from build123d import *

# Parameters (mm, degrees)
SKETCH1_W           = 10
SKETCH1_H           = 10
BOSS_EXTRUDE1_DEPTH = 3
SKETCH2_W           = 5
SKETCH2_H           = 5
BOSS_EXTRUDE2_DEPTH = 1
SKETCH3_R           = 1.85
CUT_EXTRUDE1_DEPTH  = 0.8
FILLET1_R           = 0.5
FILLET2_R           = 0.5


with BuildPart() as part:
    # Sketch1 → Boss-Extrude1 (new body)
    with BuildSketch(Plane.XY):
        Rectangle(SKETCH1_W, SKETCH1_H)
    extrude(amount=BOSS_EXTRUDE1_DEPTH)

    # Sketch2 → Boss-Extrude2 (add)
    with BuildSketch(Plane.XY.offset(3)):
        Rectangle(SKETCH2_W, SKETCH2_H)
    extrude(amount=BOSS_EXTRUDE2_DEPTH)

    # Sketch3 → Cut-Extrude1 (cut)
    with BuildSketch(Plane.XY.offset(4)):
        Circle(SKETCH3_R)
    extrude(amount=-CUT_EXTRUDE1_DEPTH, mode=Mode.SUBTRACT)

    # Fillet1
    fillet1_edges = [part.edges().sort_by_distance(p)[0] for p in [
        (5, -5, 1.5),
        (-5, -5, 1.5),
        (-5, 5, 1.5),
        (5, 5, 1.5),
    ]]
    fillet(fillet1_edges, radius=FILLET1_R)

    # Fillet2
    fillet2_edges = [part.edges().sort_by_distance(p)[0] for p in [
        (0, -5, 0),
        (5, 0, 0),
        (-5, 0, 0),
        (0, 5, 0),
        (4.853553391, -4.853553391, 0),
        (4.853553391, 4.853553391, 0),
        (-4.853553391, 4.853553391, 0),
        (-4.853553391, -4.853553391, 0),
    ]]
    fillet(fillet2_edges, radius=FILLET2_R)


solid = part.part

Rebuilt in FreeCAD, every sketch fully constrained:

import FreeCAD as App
import Part
import Sketcher


def edges_at(feature, points):
    """Names of the edges that pass closest to the given points."""
    edges = feature.Shape.Edges
    near = lambda p: min(range(len(edges)), key=lambda i: edges[i].distToShape(Part.Vertex(*p))[0])
    return sorted({f"Edge{near(p) + 1}" for p in points})


def add_polygon(sketch, points):
    """Adds a closed chain of lines whose ends are joined by coincident constraints."""
    first, n = sketch.GeometryCount, len(points)
    for a, b in zip(points, points[1:] + points[:1]):
        sketch.addGeometry(Part.LineSegment(App.Vector(*a, 0), App.Vector(*b, 0)), False)
    for i in range(n):
        sketch.addConstraint(Sketcher.Constraint("Coincident", first + i, 2, first + (i + 1) % n, 1))

doc = App.newDocument("Part")
params = doc.addObject("Spreadsheet::Sheet", "Params")
for row, (alias, value) in enumerate([
    ("sketch1_width", "10 mm"),
    ("pad1_length", "3 mm"),
    ("sketch2_width", "5 mm"),
    ("pad2_length", "1 mm"),
    ("sketch3_diameter", "3.7 mm"),
    ("pocket1_length", "0.8 mm"),
    ("fillet_radius", "0.5 mm"),
    ("fillet2_radius", "0.5 mm"),
], start=1):
    params.set(f"A{row}", alias)
    params.set(f"B{row}", "=" + value)
    params.setAlias(f"B{row}", alias)

body = doc.addObject("PartDesign::Body", "Body")

sketch1 = doc.addObject("Sketcher::SketchObject", "Sketch")
body.addObject(sketch1)
sketch1.AttachmentSupport = (doc.XY_Plane, [""])
sketch1.MapMode = "FlatFace"
add_polygon(sketch1, [(-5, 5), (-5, -5), (5, -5), (5, 5)])
sketch1.addConstraint(Sketcher.Constraint("Vertical", 0))
sketch1.addConstraint(Sketcher.Constraint("Horizontal", 1))
sketch1.addConstraint(Sketcher.Constraint("Vertical", 2))
sketch1.addConstraint(Sketcher.Constraint("Horizontal", 3))
sketch1.addConstraint(Sketcher.Constraint("Symmetric", 0, 2, 2, 2, -1, 1))
sketch1.addConstraint(Sketcher.Constraint("Equal", 3, 0))
sketch1.addConstraint(Sketcher.Constraint("DistanceX", 1, 1, 1, 2, 10.0))
sketch1.setExpression("Constraints[10]", "Params.sketch1_width")
pad1 = doc.addObject("PartDesign::Pad", "Pad")
body.addObject(pad1)
pad1.Profile = sketch1
pad1.setExpression("Length", "Params.pad1_length")

sketch2 = doc.addObject("Sketcher::SketchObject", "Sketch001")
body.addObject(sketch2)
sketch2.AttachmentSupport = (doc.XY_Plane, [""])
sketch2.MapMode = "FlatFace"
sketch2.AttachmentOffset = App.Placement(App.Vector(0, 0, 3), App.Rotation())
add_polygon(sketch2, [(-2, 2), (-2, -2), (2, -2), (2, 2)])
sketch2.addConstraint(Sketcher.Constraint("Vertical", 0))
sketch2.addConstraint(Sketcher.Constraint("Horizontal", 1))
sketch2.addConstraint(Sketcher.Constraint("Vertical", 2))
sketch2.addConstraint(Sketcher.Constraint("Horizontal", 3))
sketch2.addConstraint(Sketcher.Constraint("Symmetric", 0, 2, 2, 2, -1, 1))
sketch2.addConstraint(Sketcher.Constraint("Equal", 3, 0))
sketch2.addConstraint(Sketcher.Constraint("DistanceX", 1, 1, 1, 2, 5.0))
sketch2.setExpression("Constraints[10]", "Params.sketch2_width")
pad2 = doc.addObject("PartDesign::Pad", "Pad001")
body.addObject(pad2)
pad2.Profile = sketch2
pad2.setExpression("Length", "Params.pad2_length")

sketch3 = doc.addObject("Sketcher::SketchObject", "Sketch002")
body.addObject(sketch3)
sketch3.AttachmentSupport = (doc.XY_Plane, [""])
sketch3.MapMode = "FlatFace"
sketch3.AttachmentOffset = App.Placement(App.Vector(0, 0, 4), App.Rotation())
sketch3.addGeometry(Part.Circle(App.Vector(0, 0, 0), App.Vector(0, 0, 1), 1.9), False)
sketch3.addConstraint(Sketcher.Constraint("Coincident", 0, 3, -1, 1))
sketch3.addConstraint(Sketcher.Constraint("Diameter", 0, 3.7))
sketch3.setExpression("Constraints[1]", "Params.sketch3_diameter")
pocket1 = doc.addObject("PartDesign::Pocket", "Pocket")
body.addObject(pocket1)
pocket1.Profile = sketch3
pocket1.setExpression("Length", "Params.pocket1_length")
doc.recompute()

fillet = doc.addObject("PartDesign::Fillet", "Fillet")
body.addObject(fillet)
fillet.Base = (pocket1, edges_at(pocket1, [
    (5, -5, 1.5),
    (-5, -5, 1.5),
    (-5, 5, 1.5),
    (5, 5, 1.5),
]))
fillet.setExpression("Radius", "Params.fillet_radius")
doc.recompute()

fillet2 = doc.addObject("PartDesign::Fillet", "Fillet001")
body.addObject(fillet2)
fillet2.Base = (fillet, edges_at(fillet, [
    (0, -5, 0),
    (5, 0, 0),
    (-5, 0, 0),
    (0, 5, 0),
    (4.854, -4.854, 0),
    (4.854, 4.854, 0),
    (-4.854, 4.854, 0),
    (-4.854, -4.854, 0),
]))
fillet2.setExpression("Radius", "Params.fillet2_radius")

doc.recompute()
